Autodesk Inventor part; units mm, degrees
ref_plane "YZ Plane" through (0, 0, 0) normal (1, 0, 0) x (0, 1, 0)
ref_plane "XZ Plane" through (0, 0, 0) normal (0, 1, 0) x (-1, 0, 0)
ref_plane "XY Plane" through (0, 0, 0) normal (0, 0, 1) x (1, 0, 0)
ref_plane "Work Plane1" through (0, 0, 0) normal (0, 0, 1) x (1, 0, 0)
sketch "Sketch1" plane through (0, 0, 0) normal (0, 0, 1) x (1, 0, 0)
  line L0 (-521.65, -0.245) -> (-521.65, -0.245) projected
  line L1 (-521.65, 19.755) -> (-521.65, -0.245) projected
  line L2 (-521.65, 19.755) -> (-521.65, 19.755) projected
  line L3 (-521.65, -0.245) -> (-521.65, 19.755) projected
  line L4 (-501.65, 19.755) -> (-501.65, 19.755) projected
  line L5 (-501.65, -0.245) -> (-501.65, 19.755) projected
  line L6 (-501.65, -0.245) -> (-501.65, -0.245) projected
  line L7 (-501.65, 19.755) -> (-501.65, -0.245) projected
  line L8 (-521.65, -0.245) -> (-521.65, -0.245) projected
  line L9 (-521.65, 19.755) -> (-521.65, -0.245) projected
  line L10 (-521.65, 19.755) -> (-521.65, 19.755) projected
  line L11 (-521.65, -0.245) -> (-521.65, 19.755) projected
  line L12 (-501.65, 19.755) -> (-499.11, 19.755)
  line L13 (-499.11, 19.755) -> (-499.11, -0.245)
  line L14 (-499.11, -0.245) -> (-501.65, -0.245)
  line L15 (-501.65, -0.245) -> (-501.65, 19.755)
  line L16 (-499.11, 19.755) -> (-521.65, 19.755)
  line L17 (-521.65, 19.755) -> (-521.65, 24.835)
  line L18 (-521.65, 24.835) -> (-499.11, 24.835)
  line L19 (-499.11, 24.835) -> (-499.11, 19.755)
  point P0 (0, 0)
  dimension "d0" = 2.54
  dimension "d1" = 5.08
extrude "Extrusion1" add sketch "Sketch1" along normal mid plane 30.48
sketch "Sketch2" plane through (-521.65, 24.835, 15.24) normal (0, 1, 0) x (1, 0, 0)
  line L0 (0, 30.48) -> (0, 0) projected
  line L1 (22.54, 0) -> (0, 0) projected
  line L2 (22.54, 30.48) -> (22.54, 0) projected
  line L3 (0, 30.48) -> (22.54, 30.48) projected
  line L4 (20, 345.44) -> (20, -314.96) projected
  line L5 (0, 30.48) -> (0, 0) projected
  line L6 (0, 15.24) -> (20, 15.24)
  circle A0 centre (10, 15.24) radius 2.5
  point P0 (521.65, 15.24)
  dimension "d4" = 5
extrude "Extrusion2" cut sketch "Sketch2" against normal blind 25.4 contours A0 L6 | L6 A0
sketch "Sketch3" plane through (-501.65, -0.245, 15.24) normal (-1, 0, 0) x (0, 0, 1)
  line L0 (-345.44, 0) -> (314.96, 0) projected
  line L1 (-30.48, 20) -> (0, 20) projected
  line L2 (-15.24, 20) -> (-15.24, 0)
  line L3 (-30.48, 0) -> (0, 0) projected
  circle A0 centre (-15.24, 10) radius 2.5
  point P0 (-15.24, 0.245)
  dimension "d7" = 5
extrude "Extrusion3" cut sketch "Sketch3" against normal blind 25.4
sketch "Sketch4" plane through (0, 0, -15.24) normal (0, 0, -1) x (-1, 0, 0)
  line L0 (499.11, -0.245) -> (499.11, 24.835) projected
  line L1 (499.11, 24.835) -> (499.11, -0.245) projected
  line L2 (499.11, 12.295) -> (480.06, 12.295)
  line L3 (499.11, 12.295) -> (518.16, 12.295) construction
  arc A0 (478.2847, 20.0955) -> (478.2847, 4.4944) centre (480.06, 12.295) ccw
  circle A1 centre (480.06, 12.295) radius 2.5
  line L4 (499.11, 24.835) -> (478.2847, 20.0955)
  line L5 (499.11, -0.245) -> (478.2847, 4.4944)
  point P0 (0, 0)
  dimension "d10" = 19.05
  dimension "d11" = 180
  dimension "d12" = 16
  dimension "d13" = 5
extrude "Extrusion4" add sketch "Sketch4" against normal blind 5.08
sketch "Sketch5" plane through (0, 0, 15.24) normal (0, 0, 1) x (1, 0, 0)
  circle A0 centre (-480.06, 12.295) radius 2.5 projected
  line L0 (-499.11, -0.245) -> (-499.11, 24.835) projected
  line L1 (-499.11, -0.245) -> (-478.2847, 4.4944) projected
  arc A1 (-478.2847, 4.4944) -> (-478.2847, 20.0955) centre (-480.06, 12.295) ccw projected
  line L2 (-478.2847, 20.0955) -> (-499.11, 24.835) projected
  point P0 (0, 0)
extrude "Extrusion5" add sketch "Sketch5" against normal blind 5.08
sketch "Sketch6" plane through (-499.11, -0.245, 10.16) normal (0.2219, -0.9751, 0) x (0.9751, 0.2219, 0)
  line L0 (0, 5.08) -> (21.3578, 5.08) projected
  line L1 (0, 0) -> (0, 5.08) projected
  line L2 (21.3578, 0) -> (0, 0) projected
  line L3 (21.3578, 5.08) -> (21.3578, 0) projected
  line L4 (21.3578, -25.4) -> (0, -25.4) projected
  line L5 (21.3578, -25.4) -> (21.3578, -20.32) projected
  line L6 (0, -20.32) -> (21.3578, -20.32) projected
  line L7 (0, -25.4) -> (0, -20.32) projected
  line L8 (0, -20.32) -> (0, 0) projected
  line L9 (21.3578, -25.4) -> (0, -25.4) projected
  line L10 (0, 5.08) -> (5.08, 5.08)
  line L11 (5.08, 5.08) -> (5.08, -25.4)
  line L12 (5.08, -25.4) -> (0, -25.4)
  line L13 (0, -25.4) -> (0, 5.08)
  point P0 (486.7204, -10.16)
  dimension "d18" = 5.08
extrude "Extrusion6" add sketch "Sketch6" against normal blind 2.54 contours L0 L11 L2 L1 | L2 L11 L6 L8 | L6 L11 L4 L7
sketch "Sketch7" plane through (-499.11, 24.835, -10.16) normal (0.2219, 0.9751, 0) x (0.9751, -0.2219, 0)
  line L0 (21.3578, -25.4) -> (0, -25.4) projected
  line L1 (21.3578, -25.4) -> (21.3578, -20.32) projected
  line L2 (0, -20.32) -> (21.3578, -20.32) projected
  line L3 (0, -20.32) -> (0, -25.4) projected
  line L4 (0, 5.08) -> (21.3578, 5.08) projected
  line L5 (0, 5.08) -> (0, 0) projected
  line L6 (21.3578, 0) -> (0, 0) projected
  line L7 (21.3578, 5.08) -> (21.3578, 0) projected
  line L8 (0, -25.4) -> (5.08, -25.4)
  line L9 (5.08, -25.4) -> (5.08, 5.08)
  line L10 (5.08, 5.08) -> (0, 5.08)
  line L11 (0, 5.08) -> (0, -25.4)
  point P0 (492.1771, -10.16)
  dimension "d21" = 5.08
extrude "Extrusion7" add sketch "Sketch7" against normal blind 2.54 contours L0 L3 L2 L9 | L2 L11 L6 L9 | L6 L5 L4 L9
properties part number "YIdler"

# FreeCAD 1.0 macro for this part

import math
import FreeCAD as App
import Part
import Sketcher
from FreeCAD import Vector
Q = App.Units.Quantity


def add_polygon(sketch, points):
    """Adds a closed chain of lines whose ends are joined by coincident constraints."""
    first, n = sketch.GeometryCount, len(points)
    for a, b in zip(points, points[1:] + points[:1]):
        sketch.addGeometry(Part.LineSegment(App.Vector(*a, 0), App.Vector(*b, 0)), False)
    for i in range(n):
        sketch.addConstraint(Sketcher.Constraint("Coincident", first + i, 2, first + (i + 1) % n, 1))

doc = App.newDocument("Part")
body = doc.addObject("PartDesign::Body", "Body")

sketch1 = doc.addObject("Sketcher::SketchObject", "Sketch")
body.addObject(sketch1)
sketch1.AttachmentSupport = (doc.XY_Plane, [""])
sketch1.MapMode = "FlatFace"
add_polygon(sketch1, [(-501.6, 19.8), (-501.6, -0.2), (-499.1, -0.2), (-499.1, 24.8), (-521.6, 24.8), (-521.6, 19.8)])
sketch1.addConstraint([
    Sketcher.Constraint("Vertical", 0),
    Sketcher.Constraint("Horizontal", 1),
    Sketcher.Constraint("Vertical", 2),
    Sketcher.Constraint("Horizontal", 3),
    Sketcher.Constraint("Vertical", 4),
    Sketcher.Constraint("Horizontal", 5),
    Sketcher.Constraint("Equal", 5, 0),
    Sketcher.Constraint("DistanceX", 1, 1, 1, 2, Q("0.1 in")),
    Sketcher.Constraint("DistanceY", 4, 2, 4, 1, Q("0.2 in")),
    Sketcher.Constraint("DistanceX", 0, 2, -1, 1, Q("19.75 in")),
    Sketcher.Constraint("DistanceX", 3, 2, 3, 1, Q("0.8874 in")),
    Sketcher.Constraint("DistanceY", 0, 2, -1, 1, 0.245),
])
pad1 = doc.addObject("PartDesign::Pad", "Pad")
body.addObject(pad1)
pad1.Profile = sketch1
pad1.Length = Q("1.2 in")
pad1.Midplane = True

sketch2 = doc.addObject("Sketcher::SketchObject", "Sketch001")
body.addObject(sketch2)
sketch2.AttachmentSupport = (doc.XZ_Plane, [""])
sketch2.MapMode = "FlatFace"
sketch2.AttachmentOffset = App.Placement(Vector(0, 0, -24.835), App.Rotation())
sketch2.addGeometry(Part.Circle(Vector(-511.6, 0, 0), Vector(0, 0, 1), 2.5), False)
sketch2.addConstraint([
    Sketcher.Constraint("PointOnObject", 0, 3, -1),
    Sketcher.Constraint("Diameter", 0, 5.0),
    Sketcher.Constraint("DistanceX", 0, 3, -1, 1, Q("20.1437 in")),
])
pocket1 = doc.addObject("PartDesign::Pocket", "Pocket")
body.addObject(pocket1)
pocket1.Profile = sketch2
pocket1.Length = Q("1 in")
pocket1.Reversed = True

sketch3 = doc.addObject("Sketcher::SketchObject", "Sketch002")
body.addObject(sketch3)
sketch3.AttachmentSupport = (doc.YZ_Plane, [""])
sketch3.MapMode = "FlatFace"
sketch3.AttachmentOffset = App.Placement(Vector(0, 0, -19.75 * 25.4), App.Rotation())
sketch3.addGeometry(Part.Circle(Vector(9.8, 0, 0), Vector(0, 0, 1), 2.5), False)
sketch3.addConstraint([
    Sketcher.Constraint("PointOnObject", 0, 3, -1),
    Sketcher.Constraint("Diameter", 0, 5.0),
    Sketcher.Constraint("DistanceX", -1, 1, 0, 3, 9.755),
])
pocket2 = doc.addObject("PartDesign::Pocket", "Pocket001")
body.addObject(pocket2)
pocket2.Profile = sketch3
pocket2.Length = Q("1 in")
pocket2.Reversed = True

sketch4 = doc.addObject("Sketcher::SketchObject", "Sketch003")
body.addObject(sketch4)
sketch4.AttachmentSupport = (doc.XY_Plane, [""])
sketch4.MapMode = "FlatFace"
sketch4.AttachmentOffset = App.Placement(Vector(0, 0, -0.6 * 25.4), App.Rotation())
sketch4.addGeometry([
    Part.LineSegment(Vector(-478.3, 4.5, 0), Vector(-499.1, -0.2, 0)),
    Part.LineSegment(Vector(-499.1, -0.2, 0), Vector(-499.1, 12.3, 0)),
    Part.LineSegment(Vector(-499.1, 12.3, 0), Vector(-499.1, 24.8, 0)),
    Part.LineSegment(Vector(-499.1, 24.8, 0), Vector(-478.3, 20.1, 0)),
    Part.ArcOfCircle(Part.Circle(Vector(-480.1, 12.3, 0), Vector(0, 0, 1), 8), math.radians(-77), math.radians(77)),
    Part.Circle(Vector(-480.1, 12.3, 0), Vector(0, 0, 1), 2.5),
], False)
sketch4.addConstraint([
    Sketcher.Constraint("Coincident", 0, 2, 1, 1),
    Sketcher.Constraint("Coincident", 1, 2, 2, 1),
    Sketcher.Constraint("Coincident", 2, 2, 3, 1),
    Sketcher.Constraint("Tangent", 3, 2, 4, 2),
    Sketcher.Constraint("Tangent", 4, 1, 0, 1),
    Sketcher.Constraint("Vertical", 1),
    Sketcher.Constraint("Vertical", 2),
    Sketcher.Constraint("Coincident", 5, 3, 4, 3),
    Sketcher.Constraint("Horizontal", 5, 3, 1, 2),
    Sketcher.Constraint("Vertical", 3, 2, 4, 1),
    Sketcher.Constraint("Diameter", 5, 5.0),
    Sketcher.Constraint("Radius", 4, 8.0),
    Sketcher.Constraint("DistanceX", 0, 2, 4, 3, Q("0.75 in")),
    Sketcher.Constraint("DistanceX", 4, 3, -1, 1, Q("18.9 in")),
    Sketcher.Constraint("Angle", 0, Q("-167.179 deg")),
    Sketcher.Constraint("DistanceY", -1, 1, 4, 3, 12.295),
])
pad2 = doc.addObject("PartDesign::Pad", "Pad001")
body.addObject(pad2)
pad2.Profile = sketch4
pad2.Length = Q("0.2 in")

sketch5 = doc.addObject("Sketcher::SketchObject", "Sketch004")
body.addObject(sketch5)
sketch5.AttachmentSupport = (doc.XY_Plane, [""])
sketch5.MapMode = "FlatFace"
sketch5.AttachmentOffset = App.Placement(Vector(0, 0, 0.6 * 25.4), App.Rotation())
sketch5.addGeometry([
    Part.LineSegment(Vector(-499.1, 24.8, 0), Vector(-499.1, -0.2, 0)),
    Part.LineSegment(Vector(-499.1, -0.2, 0), Vector(-478.3, 4.5, 0)),
    Part.ArcOfCircle(Part.Circle(Vector(-480.1, 12.3, 0), Vector(0, 0, 1), 8), math.radians(-77), math.radians(77)),
    Part.LineSegment(Vector(-478.3, 20.1, 0), Vector(-499.1, 24.8, 0)),
    Part.Circle(Vector(-480.1, 12.3, 0), Vector(0, 0, 1), 2.5),
], False)
sketch5.addConstraint([
    Sketcher.Constraint("Coincident", 0, 2, 1, 1),
    Sketcher.Constraint("Tangent", 1, 2, 2, 1),
    Sketcher.Constraint("Tangent", 2, 2, 3, 1),
    Sketcher.Constraint("Coincident", 3, 2, 0, 1),
    Sketcher.Constraint("Vertical", 0),
    Sketcher.Constraint("Coincident", 4, 3, 2, 3),
    Sketcher.Constraint("Vertical", 1, 2, 2, 2),
    Sketcher.Constraint("DistanceX", 2, 3, -1, 1, Q("18.9 in")),
    Sketcher.Constraint("Diameter", 4, 5.0),
    Sketcher.Constraint("DistanceX", 0, 2, -1, 1, Q("19.65 in")),
    Sketcher.Constraint("Angle", 1, Q("12.821 deg")),
    Sketcher.Constraint("Radius", 2, 8.0),
    Sketcher.Constraint("DistanceY", -1, 1, 2, 3, 12.295),
])
pad3 = doc.addObject("PartDesign::Pad", "Pad002")
body.addObject(pad3)
pad3.Profile = sketch5
pad3.Length = Q("0.2 in")
pad3.Reversed = True

sketch6 = doc.addObject("Sketcher::SketchObject", "Sketch005")
body.addObject(sketch6)
sketch6.Placement = App.Placement(Vector(-499.11, -0.245, 10.16), App.Rotation(Vector(0.975070934, 0.221893385, 0), Vector(0, 0, 1.000000001), Vector(0.221893385, -0.975070934, 0), "ZXY"))
add_polygon(sketch6, [(5, 5), (0, 5), (0, -25), (5, -25)])
sketch6.addConstraint([
    Sketcher.Constraint("Horizontal", 0),
    Sketcher.Constraint("Vertical", 1),
    Sketcher.Constraint("Horizontal", 2),
    Sketcher.Constraint("Vertical", 3),
    Sketcher.Constraint("PointOnObject", 0, 2, -2),
    Sketcher.Constraint("DistanceX", 0, 2, 0, 1, Q("0.2 in")),
    Sketcher.Constraint("DistanceY", -1, 1, 0, 2, Q("0.2 in")),
    Sketcher.Constraint("DistanceY", 1, 2, 1, 1, Q("1.2 in")),
])
pad4 = doc.addObject("PartDesign::Pad", "Pad003")
body.addObject(pad4)
pad4.Profile = sketch6
pad4.Length = Q("0.1 in")
pad4.Reversed = True

sketch7 = doc.addObject("Sketcher::SketchObject", "Sketch006")
body.addObject(sketch7)
sketch7.Placement = App.Placement(Vector(-499.11, 24.835, -10.16), App.Rotation(Vector(0.975070934, -0.221893385, 0), Vector(0, 0, -1.000000001), Vector(0.221893385, 0.975070934, 0), "ZXY"))
add_polygon(sketch7, [(0, -25), (5, -25), (5, 5), (0, 5)])
sketch7.addConstraint([
    Sketcher.Constraint("Horizontal", 0),
    Sketcher.Constraint("Vertical", 1),
    Sketcher.Constraint("Horizontal", 2),
    Sketcher.Constraint("Vertical", 3),
    Sketcher.Constraint("PointOnObject", 2, 2, -2),
    Sketcher.Constraint("DistanceX", 0, 1, 0, 2, Q("0.2 in")),
    Sketcher.Constraint("DistanceY", -1, 1, 1, 2, Q("0.2 in")),
    Sketcher.Constraint("DistanceY", 1, 1, 1, 2, Q("1.2 in")),
])
pad5 = doc.addObject("PartDesign::Pad", "Pad004")
body.addObject(pad5)
pad5.Profile = sketch7
pad5.Length = Q("0.1 in")
pad5.Reversed = True

doc.recompute()
